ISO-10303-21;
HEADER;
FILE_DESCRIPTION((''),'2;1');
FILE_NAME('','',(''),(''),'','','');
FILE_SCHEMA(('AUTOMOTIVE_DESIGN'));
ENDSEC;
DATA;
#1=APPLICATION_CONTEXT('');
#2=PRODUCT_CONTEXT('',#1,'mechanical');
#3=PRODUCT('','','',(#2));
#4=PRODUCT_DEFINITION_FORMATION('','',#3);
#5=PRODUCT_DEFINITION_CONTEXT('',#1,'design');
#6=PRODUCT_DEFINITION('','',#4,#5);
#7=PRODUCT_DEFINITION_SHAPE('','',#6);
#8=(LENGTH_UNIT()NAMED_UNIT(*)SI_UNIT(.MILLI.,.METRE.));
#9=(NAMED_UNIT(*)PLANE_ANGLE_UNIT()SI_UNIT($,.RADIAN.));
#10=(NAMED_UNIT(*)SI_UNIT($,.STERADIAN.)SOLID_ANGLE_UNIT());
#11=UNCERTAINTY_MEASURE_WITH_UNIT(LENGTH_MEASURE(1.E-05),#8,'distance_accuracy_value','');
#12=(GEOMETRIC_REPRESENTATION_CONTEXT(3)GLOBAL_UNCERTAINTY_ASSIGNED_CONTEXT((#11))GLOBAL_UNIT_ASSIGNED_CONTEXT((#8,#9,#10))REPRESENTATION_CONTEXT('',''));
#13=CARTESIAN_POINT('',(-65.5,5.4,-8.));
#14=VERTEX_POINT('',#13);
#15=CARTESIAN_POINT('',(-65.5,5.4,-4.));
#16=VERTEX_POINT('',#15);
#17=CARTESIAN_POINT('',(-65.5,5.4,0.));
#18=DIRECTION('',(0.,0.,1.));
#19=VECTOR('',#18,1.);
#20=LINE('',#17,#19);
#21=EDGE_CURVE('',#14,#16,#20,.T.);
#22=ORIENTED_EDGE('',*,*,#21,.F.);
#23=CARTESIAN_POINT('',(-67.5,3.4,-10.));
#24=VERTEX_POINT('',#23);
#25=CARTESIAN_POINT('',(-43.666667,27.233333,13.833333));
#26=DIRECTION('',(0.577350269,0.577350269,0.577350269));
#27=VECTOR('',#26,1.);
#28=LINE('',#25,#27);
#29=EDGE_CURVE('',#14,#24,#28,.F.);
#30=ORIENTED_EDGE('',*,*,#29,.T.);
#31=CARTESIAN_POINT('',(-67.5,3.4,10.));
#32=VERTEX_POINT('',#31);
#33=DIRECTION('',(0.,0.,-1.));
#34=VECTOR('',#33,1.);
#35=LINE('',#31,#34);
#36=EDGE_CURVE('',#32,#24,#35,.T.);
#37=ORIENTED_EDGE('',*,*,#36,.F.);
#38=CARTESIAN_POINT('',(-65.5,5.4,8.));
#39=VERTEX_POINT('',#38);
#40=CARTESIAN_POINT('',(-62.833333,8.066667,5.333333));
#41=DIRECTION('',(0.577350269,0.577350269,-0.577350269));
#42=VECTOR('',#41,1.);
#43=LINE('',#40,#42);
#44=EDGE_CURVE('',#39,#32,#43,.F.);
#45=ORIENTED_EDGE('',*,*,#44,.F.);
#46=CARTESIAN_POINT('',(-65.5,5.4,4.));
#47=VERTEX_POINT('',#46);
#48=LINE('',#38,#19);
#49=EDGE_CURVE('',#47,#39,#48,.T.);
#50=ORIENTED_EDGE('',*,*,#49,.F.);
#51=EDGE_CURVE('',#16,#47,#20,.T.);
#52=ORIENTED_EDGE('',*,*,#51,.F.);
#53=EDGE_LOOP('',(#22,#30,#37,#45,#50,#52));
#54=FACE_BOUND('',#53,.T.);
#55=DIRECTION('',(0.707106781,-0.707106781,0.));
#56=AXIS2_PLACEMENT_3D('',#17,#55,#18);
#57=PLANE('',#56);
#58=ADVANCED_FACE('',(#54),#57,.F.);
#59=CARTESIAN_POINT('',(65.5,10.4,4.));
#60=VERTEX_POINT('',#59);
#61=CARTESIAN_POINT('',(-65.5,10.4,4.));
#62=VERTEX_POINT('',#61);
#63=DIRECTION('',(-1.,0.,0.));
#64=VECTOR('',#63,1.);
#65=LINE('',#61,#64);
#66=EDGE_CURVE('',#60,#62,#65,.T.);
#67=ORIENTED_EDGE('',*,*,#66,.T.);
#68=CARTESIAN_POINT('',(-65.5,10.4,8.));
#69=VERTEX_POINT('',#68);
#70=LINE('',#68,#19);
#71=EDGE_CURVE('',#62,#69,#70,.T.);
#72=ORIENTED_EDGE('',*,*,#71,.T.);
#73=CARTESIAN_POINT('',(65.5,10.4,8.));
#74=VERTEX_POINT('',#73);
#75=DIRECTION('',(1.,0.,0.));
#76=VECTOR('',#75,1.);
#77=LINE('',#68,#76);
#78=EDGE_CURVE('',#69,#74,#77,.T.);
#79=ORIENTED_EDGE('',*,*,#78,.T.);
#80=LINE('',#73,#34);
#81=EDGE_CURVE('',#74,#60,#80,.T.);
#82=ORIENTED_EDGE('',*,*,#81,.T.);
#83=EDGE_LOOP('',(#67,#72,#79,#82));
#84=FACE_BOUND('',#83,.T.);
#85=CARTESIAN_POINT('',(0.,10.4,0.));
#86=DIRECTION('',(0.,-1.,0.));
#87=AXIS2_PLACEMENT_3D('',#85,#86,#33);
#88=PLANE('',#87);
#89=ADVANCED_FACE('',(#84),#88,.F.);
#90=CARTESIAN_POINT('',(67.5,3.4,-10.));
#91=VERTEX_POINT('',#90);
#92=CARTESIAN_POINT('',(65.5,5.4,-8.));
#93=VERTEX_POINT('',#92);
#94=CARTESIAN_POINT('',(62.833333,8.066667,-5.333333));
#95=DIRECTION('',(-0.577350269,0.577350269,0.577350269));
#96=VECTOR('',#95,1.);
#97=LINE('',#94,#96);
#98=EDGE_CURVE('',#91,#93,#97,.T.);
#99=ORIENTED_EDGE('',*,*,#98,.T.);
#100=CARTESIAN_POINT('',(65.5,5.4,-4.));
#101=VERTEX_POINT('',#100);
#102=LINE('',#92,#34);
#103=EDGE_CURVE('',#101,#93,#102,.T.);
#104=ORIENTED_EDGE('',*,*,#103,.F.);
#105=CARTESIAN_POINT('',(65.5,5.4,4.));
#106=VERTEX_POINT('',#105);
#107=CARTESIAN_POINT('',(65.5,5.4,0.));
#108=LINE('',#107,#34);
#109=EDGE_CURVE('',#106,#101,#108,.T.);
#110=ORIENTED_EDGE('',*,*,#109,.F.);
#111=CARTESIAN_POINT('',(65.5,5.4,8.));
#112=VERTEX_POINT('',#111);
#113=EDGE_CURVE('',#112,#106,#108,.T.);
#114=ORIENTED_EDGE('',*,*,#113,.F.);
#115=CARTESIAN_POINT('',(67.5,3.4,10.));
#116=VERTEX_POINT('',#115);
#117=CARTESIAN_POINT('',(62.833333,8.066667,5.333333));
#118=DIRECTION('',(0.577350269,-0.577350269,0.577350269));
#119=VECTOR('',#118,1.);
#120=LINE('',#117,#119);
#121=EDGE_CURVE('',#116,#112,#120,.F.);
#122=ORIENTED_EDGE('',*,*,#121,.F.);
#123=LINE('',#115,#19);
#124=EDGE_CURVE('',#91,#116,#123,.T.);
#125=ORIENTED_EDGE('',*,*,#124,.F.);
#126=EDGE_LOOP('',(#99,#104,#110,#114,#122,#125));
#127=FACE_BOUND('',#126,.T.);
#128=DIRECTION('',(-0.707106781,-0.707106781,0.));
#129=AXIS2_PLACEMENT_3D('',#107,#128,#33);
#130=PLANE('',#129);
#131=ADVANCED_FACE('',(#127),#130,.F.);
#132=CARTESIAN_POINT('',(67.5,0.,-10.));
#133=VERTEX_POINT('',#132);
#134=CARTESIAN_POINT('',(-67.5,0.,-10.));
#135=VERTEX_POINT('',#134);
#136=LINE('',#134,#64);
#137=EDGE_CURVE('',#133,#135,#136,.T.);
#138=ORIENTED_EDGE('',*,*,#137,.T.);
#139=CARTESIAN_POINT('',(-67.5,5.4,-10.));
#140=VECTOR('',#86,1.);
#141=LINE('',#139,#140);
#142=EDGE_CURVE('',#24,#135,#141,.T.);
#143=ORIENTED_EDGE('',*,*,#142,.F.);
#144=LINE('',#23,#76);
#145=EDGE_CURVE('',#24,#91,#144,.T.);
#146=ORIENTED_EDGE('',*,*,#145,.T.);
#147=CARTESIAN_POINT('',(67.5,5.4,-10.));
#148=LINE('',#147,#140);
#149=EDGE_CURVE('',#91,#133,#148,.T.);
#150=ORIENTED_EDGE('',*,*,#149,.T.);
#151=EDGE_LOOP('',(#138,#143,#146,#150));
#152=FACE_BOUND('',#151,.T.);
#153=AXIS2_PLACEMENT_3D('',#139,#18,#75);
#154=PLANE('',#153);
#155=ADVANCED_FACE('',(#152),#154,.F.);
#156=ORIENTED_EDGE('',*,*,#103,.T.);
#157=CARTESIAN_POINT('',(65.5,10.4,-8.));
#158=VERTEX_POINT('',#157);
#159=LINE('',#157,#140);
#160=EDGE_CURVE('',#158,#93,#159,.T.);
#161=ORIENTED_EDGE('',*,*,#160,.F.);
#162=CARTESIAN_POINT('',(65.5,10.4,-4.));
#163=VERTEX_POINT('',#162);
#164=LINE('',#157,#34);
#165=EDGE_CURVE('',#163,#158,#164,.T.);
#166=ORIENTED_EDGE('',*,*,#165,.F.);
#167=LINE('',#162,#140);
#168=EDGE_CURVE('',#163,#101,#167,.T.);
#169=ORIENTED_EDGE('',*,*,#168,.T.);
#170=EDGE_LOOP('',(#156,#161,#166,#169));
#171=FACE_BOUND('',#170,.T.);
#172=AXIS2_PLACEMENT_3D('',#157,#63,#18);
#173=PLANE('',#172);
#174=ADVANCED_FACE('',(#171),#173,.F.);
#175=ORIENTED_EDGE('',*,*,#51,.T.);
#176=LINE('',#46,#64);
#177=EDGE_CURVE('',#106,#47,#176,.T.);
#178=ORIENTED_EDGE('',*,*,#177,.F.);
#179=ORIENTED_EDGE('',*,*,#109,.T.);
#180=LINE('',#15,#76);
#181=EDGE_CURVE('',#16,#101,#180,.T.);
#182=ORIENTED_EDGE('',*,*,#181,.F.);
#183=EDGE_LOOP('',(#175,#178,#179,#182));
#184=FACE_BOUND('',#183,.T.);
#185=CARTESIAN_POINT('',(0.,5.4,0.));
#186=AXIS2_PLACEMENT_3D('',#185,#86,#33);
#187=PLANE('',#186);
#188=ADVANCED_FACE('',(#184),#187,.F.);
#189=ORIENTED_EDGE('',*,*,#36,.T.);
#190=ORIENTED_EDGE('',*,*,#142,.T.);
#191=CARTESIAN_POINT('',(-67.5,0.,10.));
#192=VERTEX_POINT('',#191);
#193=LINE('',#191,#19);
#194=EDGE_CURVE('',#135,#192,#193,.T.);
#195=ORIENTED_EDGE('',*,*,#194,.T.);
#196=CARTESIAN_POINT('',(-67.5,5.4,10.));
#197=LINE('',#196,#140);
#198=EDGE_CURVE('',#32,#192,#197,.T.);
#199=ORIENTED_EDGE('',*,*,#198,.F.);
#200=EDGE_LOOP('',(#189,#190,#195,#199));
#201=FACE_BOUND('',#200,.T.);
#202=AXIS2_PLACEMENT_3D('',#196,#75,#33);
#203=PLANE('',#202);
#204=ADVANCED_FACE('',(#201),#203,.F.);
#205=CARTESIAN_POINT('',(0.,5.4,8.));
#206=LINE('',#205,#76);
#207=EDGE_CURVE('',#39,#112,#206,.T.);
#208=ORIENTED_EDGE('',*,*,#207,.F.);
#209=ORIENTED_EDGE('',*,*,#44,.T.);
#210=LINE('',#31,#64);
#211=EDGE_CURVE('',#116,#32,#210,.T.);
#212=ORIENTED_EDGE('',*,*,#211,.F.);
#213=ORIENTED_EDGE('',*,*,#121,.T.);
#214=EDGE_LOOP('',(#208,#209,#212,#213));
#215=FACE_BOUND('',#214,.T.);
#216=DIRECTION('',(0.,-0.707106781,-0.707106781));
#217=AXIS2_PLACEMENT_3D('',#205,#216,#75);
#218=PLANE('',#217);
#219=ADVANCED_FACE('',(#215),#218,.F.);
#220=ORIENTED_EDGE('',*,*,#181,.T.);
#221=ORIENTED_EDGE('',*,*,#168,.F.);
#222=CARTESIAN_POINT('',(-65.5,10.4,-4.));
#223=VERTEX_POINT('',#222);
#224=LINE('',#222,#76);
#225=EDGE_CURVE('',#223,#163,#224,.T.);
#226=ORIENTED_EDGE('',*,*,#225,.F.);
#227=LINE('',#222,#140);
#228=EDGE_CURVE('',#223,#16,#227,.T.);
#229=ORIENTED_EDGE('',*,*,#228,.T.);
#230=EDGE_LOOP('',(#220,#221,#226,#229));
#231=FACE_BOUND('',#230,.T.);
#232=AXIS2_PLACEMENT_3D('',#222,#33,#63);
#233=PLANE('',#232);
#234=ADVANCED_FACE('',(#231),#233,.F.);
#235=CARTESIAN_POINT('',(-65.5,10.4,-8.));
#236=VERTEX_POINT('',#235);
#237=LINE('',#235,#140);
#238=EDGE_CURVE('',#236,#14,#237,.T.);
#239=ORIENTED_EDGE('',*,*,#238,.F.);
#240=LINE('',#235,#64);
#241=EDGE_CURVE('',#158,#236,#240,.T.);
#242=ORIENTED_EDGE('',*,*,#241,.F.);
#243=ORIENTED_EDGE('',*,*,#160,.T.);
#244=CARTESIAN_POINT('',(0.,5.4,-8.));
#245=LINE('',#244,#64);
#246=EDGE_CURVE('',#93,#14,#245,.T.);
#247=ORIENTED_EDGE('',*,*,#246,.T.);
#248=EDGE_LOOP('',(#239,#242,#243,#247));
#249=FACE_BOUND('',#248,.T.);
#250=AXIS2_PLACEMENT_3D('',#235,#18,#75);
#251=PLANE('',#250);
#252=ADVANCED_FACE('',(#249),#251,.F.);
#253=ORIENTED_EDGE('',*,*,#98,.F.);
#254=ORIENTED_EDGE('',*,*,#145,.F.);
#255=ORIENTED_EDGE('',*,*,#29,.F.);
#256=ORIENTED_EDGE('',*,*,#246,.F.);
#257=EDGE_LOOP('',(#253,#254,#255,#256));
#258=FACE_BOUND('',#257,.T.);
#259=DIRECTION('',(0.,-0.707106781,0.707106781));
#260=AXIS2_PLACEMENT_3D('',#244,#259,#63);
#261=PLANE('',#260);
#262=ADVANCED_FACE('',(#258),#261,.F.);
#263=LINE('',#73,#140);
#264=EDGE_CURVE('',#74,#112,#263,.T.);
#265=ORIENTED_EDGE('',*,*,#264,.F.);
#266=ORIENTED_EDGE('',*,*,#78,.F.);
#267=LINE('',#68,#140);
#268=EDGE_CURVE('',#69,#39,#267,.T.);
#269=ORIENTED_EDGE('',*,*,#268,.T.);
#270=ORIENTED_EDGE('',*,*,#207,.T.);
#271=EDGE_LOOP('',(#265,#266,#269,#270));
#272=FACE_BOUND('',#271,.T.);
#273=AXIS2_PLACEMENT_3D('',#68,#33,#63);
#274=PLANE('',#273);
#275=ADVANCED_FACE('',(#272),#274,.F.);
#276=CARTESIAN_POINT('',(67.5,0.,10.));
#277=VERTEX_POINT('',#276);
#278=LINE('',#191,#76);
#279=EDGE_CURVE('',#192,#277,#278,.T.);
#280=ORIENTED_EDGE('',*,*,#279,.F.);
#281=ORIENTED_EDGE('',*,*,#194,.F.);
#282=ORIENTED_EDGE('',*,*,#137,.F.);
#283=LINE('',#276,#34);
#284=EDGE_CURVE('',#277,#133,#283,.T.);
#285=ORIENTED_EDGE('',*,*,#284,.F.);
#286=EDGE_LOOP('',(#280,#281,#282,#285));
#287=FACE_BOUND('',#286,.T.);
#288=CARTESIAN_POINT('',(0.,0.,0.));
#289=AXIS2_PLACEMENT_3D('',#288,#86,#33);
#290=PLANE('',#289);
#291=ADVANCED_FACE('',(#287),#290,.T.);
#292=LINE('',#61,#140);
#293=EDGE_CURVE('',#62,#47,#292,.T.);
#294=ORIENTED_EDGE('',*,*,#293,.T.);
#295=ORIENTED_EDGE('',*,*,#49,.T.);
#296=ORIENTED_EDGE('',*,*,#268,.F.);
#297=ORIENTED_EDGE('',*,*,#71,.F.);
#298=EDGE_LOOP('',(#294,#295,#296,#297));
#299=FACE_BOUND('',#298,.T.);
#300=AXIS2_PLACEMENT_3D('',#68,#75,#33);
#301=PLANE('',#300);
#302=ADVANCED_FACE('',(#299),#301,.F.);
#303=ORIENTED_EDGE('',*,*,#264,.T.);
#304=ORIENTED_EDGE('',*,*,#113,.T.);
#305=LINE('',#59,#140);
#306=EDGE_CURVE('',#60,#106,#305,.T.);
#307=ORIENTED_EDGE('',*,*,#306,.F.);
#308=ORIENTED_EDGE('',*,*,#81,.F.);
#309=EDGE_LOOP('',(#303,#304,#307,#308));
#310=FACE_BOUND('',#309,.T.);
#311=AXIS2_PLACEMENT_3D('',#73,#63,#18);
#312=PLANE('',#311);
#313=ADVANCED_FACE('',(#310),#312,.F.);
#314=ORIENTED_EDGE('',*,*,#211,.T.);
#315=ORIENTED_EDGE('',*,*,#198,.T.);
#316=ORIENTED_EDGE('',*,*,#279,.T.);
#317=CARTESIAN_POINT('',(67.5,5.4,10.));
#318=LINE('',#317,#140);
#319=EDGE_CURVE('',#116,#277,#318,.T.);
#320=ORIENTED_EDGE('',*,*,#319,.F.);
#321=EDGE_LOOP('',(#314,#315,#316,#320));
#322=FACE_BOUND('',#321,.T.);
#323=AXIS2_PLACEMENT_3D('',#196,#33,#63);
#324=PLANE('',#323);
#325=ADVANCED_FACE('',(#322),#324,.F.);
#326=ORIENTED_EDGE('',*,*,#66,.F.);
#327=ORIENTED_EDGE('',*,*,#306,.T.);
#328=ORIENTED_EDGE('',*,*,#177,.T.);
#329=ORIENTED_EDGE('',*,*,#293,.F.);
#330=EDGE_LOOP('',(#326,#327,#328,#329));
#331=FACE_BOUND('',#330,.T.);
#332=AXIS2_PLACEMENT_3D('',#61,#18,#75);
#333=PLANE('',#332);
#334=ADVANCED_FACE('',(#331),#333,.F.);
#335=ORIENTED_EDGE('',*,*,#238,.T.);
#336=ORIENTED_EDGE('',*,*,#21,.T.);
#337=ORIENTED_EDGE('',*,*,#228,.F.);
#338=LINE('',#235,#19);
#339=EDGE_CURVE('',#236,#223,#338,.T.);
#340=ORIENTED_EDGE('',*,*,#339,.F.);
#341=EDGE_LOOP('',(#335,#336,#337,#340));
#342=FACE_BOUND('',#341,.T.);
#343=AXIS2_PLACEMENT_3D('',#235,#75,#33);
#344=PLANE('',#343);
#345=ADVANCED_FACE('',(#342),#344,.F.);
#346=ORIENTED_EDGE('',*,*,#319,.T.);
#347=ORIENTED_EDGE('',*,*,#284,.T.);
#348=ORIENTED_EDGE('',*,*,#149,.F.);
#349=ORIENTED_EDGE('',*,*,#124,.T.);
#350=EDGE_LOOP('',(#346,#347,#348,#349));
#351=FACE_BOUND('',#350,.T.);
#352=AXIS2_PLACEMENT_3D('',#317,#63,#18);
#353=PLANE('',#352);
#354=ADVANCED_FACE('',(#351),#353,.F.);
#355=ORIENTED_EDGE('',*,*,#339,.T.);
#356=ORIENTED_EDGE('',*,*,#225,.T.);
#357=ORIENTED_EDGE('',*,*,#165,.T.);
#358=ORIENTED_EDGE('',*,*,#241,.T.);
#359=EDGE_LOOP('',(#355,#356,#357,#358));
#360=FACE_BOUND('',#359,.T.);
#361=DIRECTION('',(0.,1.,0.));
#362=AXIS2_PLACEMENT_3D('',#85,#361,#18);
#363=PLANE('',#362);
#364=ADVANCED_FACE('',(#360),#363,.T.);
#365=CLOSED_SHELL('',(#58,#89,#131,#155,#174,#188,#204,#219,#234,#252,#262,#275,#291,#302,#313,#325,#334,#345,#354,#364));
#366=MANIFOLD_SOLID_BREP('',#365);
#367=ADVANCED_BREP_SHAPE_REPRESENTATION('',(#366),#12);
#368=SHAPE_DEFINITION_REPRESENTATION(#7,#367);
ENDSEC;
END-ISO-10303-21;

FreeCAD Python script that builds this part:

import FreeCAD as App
import Part
import Sketcher


def edges_at(feature, points):
    """Names of the edges that pass closest to the given points."""
    edges = feature.Shape.Edges
    near = lambda p: min(range(len(edges)), key=lambda i: edges[i].distToShape(Part.Vertex(*p))[0])
    return sorted({f"Edge{near(p) + 1}" for p in points})


def add_polygon(sketch, points):
    """Adds a closed chain of lines whose ends are joined by coincident constraints."""
    first, n = sketch.GeometryCount, len(points)
    for a, b in zip(points, points[1:] + points[:1]):
        sketch.addGeometry(Part.LineSegment(App.Vector(*a, 0), App.Vector(*b, 0)), False)
    for i in range(n):
        sketch.addConstraint(Sketcher.Constraint("Coincident", first + i, 2, first + (i + 1) % n, 1))

doc = App.newDocument("Part")
params = doc.addObject("Spreadsheet::Sheet", "Params")
for row, (alias, value) in enumerate([
    ("sketch1_width", "135 mm"),
    ("sketch1_height", "20 mm"),
    ("pad1_length", "5.4 mm"),
    ("chamfer_size", "2 mm"),
    ("sketch2_width", "131 mm"),
    ("sketch2_height", "4 mm"),
    ("pad2_length", "5 mm"),
], start=1):
    params.set(f"A{row}", alias)
    params.set(f"B{row}", "=" + value)
    params.setAlias(f"B{row}", alias)

body = doc.addObject("PartDesign::Body", "Body")

# Sketch on XZ plane
sketch1 = doc.addObject("Sketcher::SketchObject", "Sketch")
body.addObject(sketch1)
sketch1.AttachmentSupport = (doc.XZ_Plane, [""])
sketch1.MapMode = "FlatFace"
add_polygon(sketch1, [(-67.5, -10), (-67.5, 10), (67.5, 10), (67.5, -10)])  # lines 0-3
sketch1.addConstraint([
    Sketcher.Constraint("Vertical", 0),
    Sketcher.Constraint("Horizontal", 1),
    Sketcher.Constraint("Vertical", 2),
    Sketcher.Constraint("Horizontal", 3),
    Sketcher.Constraint("Symmetric", 0, 2, 2, 2, -1, 1),
    Sketcher.Constraint("DistanceX", 1, 1, 1, 2, 135.0),
    Sketcher.Constraint("DistanceY", 0, 1, 0, 2, 20.0),
])
sketch1.setExpression("Constraints[9]", "Params.sketch1_width")
sketch1.setExpression("Constraints[10]", "Params.sketch1_height")
pad1 = doc.addObject("PartDesign::Pad", "Pad")
body.addObject(pad1)
pad1.Profile = sketch1
pad1.setExpression("Length", "Params.pad1_length")
pad1.Reversed = True
doc.recompute()

chamfer = doc.addObject("PartDesign::Chamfer", "Chamfer")
body.addObject(chamfer)
chamfer.Base = (pad1, edges_at(pad1, [
    (-67.5, 5.4, 0),
    (0, 5.4, 10),
    (67.5, 5.4, 0),
    (0, 5.4, -10),
]))
chamfer.setExpression("Size", "Params.chamfer_size")

# Sketch on XZ plane
sketch2 = doc.addObject("Sketcher::SketchObject", "Sketch001")
body.addObject(sketch2)
sketch2.AttachmentSupport = (doc.XZ_Plane, [""])
sketch2.MapMode = "FlatFace"
sketch2.AttachmentOffset = App.Placement(App.Vector(0, 0, -5.4), App.Rotation())
add_polygon(sketch2, [(-65.5, -8), (-65.5, -4), (65.5, -4), (65.5, -8)])  # lines 0-3
add_polygon(sketch2, [(-65.5, 4), (-65.5, 8), (65.5, 8), (65.5, 4)])  # lines 4-7
sketch2.addConstraint([
    Sketcher.Constraint("Vertical", 0),
    Sketcher.Constraint("Horizontal", 1),
    Sketcher.Constraint("Vertical", 2),
    Sketcher.Constraint("Horizontal", 3),
    Sketcher.Constraint("Vertical", 4),
    Sketcher.Constraint("Horizontal", 5),
    Sketcher.Constraint("Vertical", 6),
    Sketcher.Constraint("Horizontal", 7),
    Sketcher.Constraint("Symmetric", 2, 2, 4, 2, -1, 1),
    Sketcher.Constraint("Symmetric", 0, 2, 6, 2, -1, 1),
    Sketcher.Constraint("Vertical", 3, 2, 4, 2),
    Sketcher.Constraint("DistanceX", 1, 1, 1, 2, 131.0),
    Sketcher.Constraint("DistanceY", 0, 1, 0, 2, 4.0),
    Sketcher.Constraint("DistanceY", 0, 2, -1, 1, 4.0),
])
sketch2.setExpression("Constraints[19]", "Params.sketch2_width")
sketch2.setExpression("Constraints[20]", "Params.sketch2_height")
pad2 = doc.addObject("PartDesign::Pad", "Pad001")
body.addObject(pad2)
pad2.Profile = sketch2
pad2.setExpression("Length", "Params.pad2_length")
pad2.Reversed = True

doc.recompute()
